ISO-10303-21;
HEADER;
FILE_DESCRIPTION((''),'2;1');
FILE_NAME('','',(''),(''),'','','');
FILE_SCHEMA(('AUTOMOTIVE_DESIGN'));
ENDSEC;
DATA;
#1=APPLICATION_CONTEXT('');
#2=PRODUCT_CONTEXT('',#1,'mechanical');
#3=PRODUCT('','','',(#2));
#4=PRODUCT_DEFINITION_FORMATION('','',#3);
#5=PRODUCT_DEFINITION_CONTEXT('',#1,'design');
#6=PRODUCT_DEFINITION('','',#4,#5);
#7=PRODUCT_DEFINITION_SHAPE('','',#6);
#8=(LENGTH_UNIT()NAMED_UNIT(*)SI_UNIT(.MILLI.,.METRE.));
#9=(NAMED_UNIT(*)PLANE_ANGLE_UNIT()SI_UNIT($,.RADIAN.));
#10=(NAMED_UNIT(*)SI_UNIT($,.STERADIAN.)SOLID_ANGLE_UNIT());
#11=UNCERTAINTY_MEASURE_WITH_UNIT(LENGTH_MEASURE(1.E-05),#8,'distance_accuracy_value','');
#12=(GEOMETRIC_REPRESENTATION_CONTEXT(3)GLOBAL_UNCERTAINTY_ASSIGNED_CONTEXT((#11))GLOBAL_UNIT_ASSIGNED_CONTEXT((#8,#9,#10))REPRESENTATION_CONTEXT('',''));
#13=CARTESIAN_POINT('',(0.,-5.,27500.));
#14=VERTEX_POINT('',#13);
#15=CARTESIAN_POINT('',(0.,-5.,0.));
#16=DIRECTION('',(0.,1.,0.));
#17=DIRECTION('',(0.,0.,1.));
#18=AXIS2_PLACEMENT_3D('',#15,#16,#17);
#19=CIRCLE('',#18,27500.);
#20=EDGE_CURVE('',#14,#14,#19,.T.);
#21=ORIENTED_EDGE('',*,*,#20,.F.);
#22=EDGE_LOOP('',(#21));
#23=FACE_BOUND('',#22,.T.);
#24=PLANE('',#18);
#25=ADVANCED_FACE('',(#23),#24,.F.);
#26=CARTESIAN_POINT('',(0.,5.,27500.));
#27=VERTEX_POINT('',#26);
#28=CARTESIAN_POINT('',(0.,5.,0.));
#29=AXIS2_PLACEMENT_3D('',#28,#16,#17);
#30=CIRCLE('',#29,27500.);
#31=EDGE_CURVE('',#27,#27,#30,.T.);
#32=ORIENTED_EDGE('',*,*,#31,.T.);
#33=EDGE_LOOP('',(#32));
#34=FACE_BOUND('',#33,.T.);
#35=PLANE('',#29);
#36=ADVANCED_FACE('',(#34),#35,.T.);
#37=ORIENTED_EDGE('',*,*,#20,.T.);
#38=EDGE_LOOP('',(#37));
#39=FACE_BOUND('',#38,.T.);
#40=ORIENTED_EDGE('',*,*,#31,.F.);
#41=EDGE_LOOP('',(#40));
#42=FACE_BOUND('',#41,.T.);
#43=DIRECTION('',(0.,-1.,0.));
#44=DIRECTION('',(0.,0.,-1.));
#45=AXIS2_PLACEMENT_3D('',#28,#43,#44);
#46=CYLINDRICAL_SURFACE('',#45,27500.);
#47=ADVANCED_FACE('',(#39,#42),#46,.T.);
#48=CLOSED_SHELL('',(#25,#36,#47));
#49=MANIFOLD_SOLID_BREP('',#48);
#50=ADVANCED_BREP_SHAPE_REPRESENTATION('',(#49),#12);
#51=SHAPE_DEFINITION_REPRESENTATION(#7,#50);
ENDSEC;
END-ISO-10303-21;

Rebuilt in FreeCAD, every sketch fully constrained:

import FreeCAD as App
import Part
import Sketcher
from FreeCAD import Vector

doc = App.newDocument("Part")
body = doc.addObject("PartDesign::Body", "Body")

sketch1 = doc.addObject("Sketcher::SketchObject", "Sketch")
body.addObject(sketch1)
sketch1.AttachmentSupport = (doc.XZ_Plane, [""])
sketch1.MapMode = "FlatFace"
sketch1.addGeometry(Part.Circle(Vector(0, 0, 0), Vector(0, 0, 1), 27500), False)
sketch1.addConstraint(Sketcher.Constraint("Coincident", 0, 3, -1, 1))
sketch1.addConstraint(Sketcher.Constraint("Diameter", 0, 55000.0))
pad1 = doc.addObject("PartDesign::Pad", "Pad")
body.addObject(pad1)
pad1.Profile = sketch1
pad1.Length = 10
pad1.Midplane = True

doc.recompute()
